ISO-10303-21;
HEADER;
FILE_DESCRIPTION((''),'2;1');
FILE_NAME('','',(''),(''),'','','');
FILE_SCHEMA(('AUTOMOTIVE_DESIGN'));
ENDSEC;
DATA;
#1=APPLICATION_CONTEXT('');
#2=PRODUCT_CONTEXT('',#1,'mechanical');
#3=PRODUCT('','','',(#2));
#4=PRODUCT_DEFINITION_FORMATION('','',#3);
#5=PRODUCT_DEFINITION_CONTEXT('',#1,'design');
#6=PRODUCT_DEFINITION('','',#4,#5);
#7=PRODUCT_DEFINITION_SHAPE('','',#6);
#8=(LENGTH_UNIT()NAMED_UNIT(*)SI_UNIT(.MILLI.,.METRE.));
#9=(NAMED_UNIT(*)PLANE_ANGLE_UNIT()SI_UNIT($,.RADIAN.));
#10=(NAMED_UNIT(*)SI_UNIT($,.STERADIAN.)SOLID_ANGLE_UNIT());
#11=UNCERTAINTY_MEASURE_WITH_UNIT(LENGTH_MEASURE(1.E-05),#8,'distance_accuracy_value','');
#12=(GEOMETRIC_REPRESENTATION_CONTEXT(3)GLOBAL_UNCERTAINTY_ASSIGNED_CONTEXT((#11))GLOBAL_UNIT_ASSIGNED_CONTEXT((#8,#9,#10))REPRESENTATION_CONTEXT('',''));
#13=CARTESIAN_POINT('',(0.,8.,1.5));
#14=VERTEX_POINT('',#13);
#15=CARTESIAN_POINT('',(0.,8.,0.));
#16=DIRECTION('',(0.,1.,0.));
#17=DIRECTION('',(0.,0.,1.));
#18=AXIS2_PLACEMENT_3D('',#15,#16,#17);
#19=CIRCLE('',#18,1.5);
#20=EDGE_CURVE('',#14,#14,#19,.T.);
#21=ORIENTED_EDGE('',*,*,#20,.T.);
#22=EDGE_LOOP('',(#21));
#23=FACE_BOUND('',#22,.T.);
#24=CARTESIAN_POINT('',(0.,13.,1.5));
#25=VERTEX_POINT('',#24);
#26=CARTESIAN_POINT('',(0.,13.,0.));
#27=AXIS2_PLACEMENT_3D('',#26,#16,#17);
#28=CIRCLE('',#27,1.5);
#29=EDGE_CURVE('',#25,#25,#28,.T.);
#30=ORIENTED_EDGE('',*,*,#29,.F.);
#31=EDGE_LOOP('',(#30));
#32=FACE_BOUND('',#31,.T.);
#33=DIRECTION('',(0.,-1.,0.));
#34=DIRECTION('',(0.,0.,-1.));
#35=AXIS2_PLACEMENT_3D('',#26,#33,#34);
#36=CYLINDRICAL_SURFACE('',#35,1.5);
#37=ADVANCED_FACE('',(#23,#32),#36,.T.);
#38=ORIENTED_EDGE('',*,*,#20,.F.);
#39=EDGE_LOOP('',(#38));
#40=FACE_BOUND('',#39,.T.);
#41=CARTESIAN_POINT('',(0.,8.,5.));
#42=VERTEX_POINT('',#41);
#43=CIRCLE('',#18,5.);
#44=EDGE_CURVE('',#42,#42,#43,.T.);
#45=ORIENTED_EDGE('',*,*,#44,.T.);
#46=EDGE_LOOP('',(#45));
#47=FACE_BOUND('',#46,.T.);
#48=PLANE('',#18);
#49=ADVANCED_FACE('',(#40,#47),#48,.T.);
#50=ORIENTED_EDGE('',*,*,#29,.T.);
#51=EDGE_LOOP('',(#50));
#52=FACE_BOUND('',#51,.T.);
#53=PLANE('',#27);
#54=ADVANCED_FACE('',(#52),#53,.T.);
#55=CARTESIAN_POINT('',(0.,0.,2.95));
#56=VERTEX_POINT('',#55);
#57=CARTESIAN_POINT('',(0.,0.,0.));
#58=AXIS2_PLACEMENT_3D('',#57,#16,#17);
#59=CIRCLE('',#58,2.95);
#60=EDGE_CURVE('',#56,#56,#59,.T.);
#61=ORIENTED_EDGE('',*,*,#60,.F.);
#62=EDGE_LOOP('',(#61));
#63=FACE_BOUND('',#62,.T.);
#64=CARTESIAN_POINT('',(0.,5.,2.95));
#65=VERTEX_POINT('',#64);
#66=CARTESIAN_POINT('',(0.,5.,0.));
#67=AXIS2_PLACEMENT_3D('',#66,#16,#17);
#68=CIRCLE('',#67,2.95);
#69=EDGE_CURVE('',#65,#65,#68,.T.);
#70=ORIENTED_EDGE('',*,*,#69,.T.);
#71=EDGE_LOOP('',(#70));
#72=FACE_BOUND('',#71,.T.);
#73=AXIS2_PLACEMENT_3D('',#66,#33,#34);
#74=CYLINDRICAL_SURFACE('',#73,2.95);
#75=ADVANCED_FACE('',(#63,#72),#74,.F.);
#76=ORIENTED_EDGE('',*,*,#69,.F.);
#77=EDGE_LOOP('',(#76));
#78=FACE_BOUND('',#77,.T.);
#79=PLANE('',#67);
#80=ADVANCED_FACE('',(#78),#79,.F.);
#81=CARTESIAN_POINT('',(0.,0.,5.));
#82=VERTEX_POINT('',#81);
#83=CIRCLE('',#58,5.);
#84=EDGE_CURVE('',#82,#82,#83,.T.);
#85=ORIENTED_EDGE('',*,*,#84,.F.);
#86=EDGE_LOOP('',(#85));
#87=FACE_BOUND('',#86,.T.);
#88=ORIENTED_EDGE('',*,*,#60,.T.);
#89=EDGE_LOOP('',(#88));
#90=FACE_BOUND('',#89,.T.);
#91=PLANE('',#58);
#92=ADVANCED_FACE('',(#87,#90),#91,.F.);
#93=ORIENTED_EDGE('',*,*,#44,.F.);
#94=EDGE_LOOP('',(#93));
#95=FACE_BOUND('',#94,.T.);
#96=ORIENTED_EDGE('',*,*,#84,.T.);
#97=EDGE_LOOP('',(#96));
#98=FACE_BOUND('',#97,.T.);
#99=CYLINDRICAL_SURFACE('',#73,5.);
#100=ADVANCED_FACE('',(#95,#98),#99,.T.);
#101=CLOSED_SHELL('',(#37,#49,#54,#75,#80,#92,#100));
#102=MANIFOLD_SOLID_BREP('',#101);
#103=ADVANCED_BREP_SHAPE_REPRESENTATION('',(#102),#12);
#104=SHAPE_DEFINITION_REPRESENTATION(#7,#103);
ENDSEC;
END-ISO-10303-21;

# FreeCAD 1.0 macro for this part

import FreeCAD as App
import Part
import Sketcher

V = App.Vector
Q = App.Units.Quantity

doc = App.newDocument("Part")
params = doc.addObject("Spreadsheet::Sheet", "Params")
for row, (alias, value) in enumerate([
    ("sketch1_diameter", "10 mm"),
    ("sketch1_diameter2", "5.9 mm"),
    ("pad1_length", "5 mm"),
    ("sketch2_diameter", "10 mm"),
    ("pad2_length", "3 mm"),
    ("sketch3_diameter", "3 mm"),
    ("pad3_length", "5 mm"),
], start=1):
    params.set(f"A{row}", alias)
    params.set(f"B{row}", "=" + value)
    params.setAlias(f"B{row}", alias)

body = doc.addObject("PartDesign::Body", "Body")

sketch1 = doc.addObject("Sketcher::SketchObject", "Sketch")
body.addObject(sketch1)
sketch1.AttachmentSupport = (doc.XZ_Plane, [""])
sketch1.MapMode = "FlatFace"
sketch1.addGeometry([
    Part.Circle(V(0, 0, 0), V(0, 0, 1), 5),
    Part.Circle(V(0, 0, 0), V(0, 0, 1), 2.95),
], False)
sketch1.addConstraint([
    Sketcher.Constraint("Coincident", 0, 3, -1, 1),
    Sketcher.Constraint("Coincident", 1, 3, -1, 1),
    Sketcher.Constraint("Diameter", 0, Q("10 mm")),
    Sketcher.Constraint("Diameter", 1, Q("5.9 mm")),
])
sketch1.setExpression("Constraints[2]", "Params.sketch1_diameter")
sketch1.setExpression("Constraints[3]", "Params.sketch1_diameter2")
pad1 = doc.addObject("PartDesign::Pad", "Pad")
body.addObject(pad1)
pad1.Profile = sketch1
pad1.setExpression("Length", "Params.pad1_length")
pad1.Reversed = True

sketch2 = doc.addObject("Sketcher::SketchObject", "Sketch001")
body.addObject(sketch2)
sketch2.AttachmentSupport = (doc.XZ_Plane, [""])
sketch2.MapMode = "FlatFace"
sketch2.AttachmentOffset = App.Placement(V(0, 0, -5), App.Rotation())
sketch2.addGeometry(Part.Circle(V(0, 0, 0), V(0, 0, 1), 5), False)
sketch2.addConstraint([
    Sketcher.Constraint("Coincident", 0, 3, -1, 1),
    Sketcher.Constraint("Diameter", 0, Q("10 mm")),
])
sketch2.setExpression("Constraints[1]", "Params.sketch2_diameter")
pad2 = doc.addObject("PartDesign::Pad", "Pad001")
body.addObject(pad2)
pad2.Profile = sketch2
pad2.setExpression("Length", "Params.pad2_length")
pad2.Reversed = True

sketch3 = doc.addObject("Sketcher::SketchObject", "Sketch002")
body.addObject(sketch3)
sketch3.AttachmentSupport = (doc.XZ_Plane, [""])
sketch3.MapMode = "FlatFace"
sketch3.AttachmentOffset = App.Placement(V(0, 0, -8), App.Rotation())
sketch3.addGeometry(Part.Circle(V(0, 0, 0), V(0, 0, 1), 1.5), False)
sketch3.addConstraint([
    Sketcher.Constraint("Coincident", 0, 3, -1, 1),
    Sketcher.Constraint("Diameter", 0, Q("3 mm")),
])
sketch3.setExpression("Constraints[1]", "Params.sketch3_diameter")
pad3 = doc.addObject("PartDesign::Pad", "Pad002")
body.addObject(pad3)
pad3.Profile = sketch3
pad3.setExpression("Length", "Params.pad3_length")
pad3.Reversed = True

doc.recompute()
